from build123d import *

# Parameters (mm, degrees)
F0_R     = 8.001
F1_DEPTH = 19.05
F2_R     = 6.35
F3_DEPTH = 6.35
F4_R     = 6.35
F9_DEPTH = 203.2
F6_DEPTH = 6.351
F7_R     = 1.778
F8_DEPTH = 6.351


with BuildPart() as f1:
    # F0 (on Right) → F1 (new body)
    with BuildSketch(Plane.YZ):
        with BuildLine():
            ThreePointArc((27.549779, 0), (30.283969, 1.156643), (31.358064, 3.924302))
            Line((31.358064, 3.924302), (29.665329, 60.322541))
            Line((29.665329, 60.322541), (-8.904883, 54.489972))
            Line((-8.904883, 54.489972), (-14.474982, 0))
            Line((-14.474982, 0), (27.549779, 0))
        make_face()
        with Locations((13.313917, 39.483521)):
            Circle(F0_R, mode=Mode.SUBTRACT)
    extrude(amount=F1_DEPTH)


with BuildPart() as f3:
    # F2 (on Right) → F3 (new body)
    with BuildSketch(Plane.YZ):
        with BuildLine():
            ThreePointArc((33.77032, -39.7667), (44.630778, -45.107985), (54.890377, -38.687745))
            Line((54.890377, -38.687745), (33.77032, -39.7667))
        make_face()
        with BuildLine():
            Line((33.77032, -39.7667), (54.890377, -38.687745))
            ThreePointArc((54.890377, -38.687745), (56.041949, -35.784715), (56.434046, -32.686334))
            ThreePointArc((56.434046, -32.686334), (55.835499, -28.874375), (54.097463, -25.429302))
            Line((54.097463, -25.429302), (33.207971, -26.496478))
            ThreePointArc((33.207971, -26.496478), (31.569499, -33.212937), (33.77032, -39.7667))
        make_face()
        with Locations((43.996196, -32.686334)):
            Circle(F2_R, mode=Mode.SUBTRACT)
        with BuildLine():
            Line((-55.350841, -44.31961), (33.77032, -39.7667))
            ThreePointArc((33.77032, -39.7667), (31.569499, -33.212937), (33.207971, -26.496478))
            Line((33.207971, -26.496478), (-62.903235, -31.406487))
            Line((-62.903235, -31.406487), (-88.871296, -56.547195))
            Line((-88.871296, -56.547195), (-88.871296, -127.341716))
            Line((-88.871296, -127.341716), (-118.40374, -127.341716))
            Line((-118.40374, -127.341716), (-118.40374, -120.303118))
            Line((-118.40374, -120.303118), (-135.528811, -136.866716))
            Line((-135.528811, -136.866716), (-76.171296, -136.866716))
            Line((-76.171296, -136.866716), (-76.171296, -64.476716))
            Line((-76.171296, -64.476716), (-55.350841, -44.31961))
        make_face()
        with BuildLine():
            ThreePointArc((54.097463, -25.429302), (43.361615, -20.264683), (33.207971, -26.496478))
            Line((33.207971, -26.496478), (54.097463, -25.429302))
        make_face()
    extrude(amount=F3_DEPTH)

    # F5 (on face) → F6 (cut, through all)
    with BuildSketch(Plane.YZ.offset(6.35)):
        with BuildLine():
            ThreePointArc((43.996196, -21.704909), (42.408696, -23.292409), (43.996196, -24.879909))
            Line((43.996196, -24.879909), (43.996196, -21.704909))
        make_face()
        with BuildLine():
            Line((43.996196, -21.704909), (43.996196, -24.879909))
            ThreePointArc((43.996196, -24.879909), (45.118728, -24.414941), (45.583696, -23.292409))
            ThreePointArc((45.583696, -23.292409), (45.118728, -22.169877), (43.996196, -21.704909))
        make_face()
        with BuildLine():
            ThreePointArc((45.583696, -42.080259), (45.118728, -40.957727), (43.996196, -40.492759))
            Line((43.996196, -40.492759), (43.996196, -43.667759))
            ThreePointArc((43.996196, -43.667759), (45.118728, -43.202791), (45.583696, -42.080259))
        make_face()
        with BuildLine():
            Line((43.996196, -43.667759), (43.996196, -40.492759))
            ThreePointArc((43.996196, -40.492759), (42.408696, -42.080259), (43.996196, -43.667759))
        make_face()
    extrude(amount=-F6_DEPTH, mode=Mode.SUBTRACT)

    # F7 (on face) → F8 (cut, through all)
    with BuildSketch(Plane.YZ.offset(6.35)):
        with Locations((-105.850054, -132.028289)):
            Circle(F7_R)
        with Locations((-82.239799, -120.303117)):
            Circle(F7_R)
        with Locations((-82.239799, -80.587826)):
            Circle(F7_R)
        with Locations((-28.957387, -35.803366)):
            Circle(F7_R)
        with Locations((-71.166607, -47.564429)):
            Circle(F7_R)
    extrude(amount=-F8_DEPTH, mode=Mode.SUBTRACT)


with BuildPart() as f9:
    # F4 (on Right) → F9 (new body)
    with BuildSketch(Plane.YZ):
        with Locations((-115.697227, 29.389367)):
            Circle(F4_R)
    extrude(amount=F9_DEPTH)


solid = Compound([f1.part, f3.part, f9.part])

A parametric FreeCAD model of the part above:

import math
import FreeCAD as App
import Part
import Sketcher
from FreeCAD import Vector
Q = App.Units.Quantity

doc = App.newDocument("Part")
body = doc.addObject("PartDesign::Body", "Body")

sketch1 = body.newObject("Sketcher::SketchObject", "Sketch")
sketch1.AttachmentSupport = (doc.getObject("YZ_Plane"), [""])
sketch1.MapMode = "FlatFace"
sketch1.addGeometry(Part.ArcOfCircle(Part.Circle(Vector(27.549779, 3.81, 0), Vector(0, 0, 1), 3.81), math.radians(-89.999993), math.radians(1.719155)), False)
sketch1.addGeometry(Part.LineSegment(Vector(31.358064, 3.924302, 0), Vector(29.665329, 60.322541, 0)), False)
sketch1.addGeometry(Part.LineSegment(Vector(29.665329, 60.322541, 0), Vector(-8.904883, 54.489972, 0)), False)
sketch1.addGeometry(Part.LineSegment(Vector(-8.904883, 54.489972, 0), Vector(-14.474982, 0, 0)), False)
sketch1.addGeometry(Part.LineSegment(Vector(-14.474982, 0, 0), Vector(27.549779, 0, 0)), False)
sketch1.addGeometry(Part.Circle(Vector(13.313917, 39.483521, 0), Vector(0, 0, 1), 8.001), False)
sketch1.addConstraint(Sketcher.Constraint("Coincident", 0, 2, 1, 1))
sketch1.addConstraint(Sketcher.Constraint("Coincident", 1, 2, 2, 1))
sketch1.addConstraint(Sketcher.Constraint("Coincident", 2, 2, 3, 1))
sketch1.addConstraint(Sketcher.Constraint("Coincident", 3, 2, 4, 1))
sketch1.addConstraint(Sketcher.Constraint("Coincident", 4, 2, 0, 1))
sketch1.addConstraint(Sketcher.Constraint("Horizontal", 4))
sketch1.addConstraint(Sketcher.Constraint("PointOnObject", 3, 2, -1))
sketch1.addConstraint(Sketcher.Constraint("Diameter", 5, Q("0.63 in")))
sketch1.addConstraint(Sketcher.Constraint("Radius", 0, Q("0.15 in")))
sketch1.addConstraint(Sketcher.Constraint("DistanceY", -1, 1, 0, 2, Q("0.1545001 in")))
sketch1.addConstraint(Sketcher.Constraint("DistanceX", 4, 1, 4, 2, 42.024761))
sketch1.addConstraint(Sketcher.Constraint("DistanceX", 2, 2, 5, 3, 22.2188))
sketch1.addConstraint(Sketcher.Constraint("DistanceX", 3, 2, 5, 3, 27.788899))
sketch1.addConstraint(Sketcher.Constraint("Distance", 2, 39.008718))
sketch1.addConstraint(Sketcher.Constraint("DistanceX", -1, 1, 0, 3, 27.549779))
sketch1.addConstraint(Sketcher.Constraint("DistanceY", -1, 1, 5, 3, 39.483521))
sketch1.addConstraint(Sketcher.Constraint("DistanceX", -1, 1, 1, 2, 29.665329))
sketch1.addConstraint(Sketcher.Constraint("DistanceY", -1, 1, 1, 2, 60.322541))
sketch1.addConstraint(Sketcher.Constraint("DistanceX", -1, 1, 4, 2, 27.549779))
pad1 = body.newObject("PartDesign::Pad", "Pad")
pad1.Profile = sketch1
pad1.Length = Q("0.75 in")
body2 = doc.addObject("PartDesign::Body", "Body001")

sketch2 = body2.newObject("Sketcher::SketchObject", "Sketch001")
sketch2.AttachmentSupport = (doc.getObject("YZ_Plane001"), [""])
sketch2.MapMode = "FlatFace"
sketch2.addGeometry(Part.ArcOfCircle(Part.Circle(Vector(43.996196, -32.686333, 0), Vector(0, 0, 1), 12.437851), math.radians(-145.301383), math.radians(-28.849592)), False)
sketch2.addGeometry(Part.ArcOfCircle(Part.Circle(Vector(43.996217, -32.686339, 0), Vector(0, 0, 1), 12.437829), math.radians(-28.849613), math.radians(0.000025)), False)
sketch2.addGeometry(Part.ArcOfCircle(Part.Circle(Vector(43.996209, -32.68633, 0), Vector(0, 0, 1), 12.437837), math.radians(-0.000018), math.radians(35.694541)), False)
sketch2.addGeometry(Part.ArcOfCircle(Part.Circle(Vector(43.996196, -32.686334, 0), Vector(0, 0, 1), 12.43785), math.radians(35.694522), math.radians(150.154502)), False)
sketch2.addGeometry(Part.LineSegment(Vector(33.207971, -26.496478, 0), Vector(-62.903235, -31.406487, 0)), False)
sketch2.addGeometry(Part.LineSegment(Vector(-62.903235, -31.406487, 0), Vector(-88.871296, -56.547195, 0)), False)
sketch2.addGeometry(Part.LineSegment(Vector(-88.871296, -56.547195, 0), Vector(-88.871296, -127.341716, 0)), False)
sketch2.addGeometry(Part.LineSegment(Vector(-88.871296, -127.341716, 0), Vector(-118.40374, -127.341716, 0)), False)
sketch2.addGeometry(Part.LineSegment(Vector(-118.40374, -127.341716, 0), Vector(-118.40374, -120.303118, 0)), False)
sketch2.addGeometry(Part.LineSegment(Vector(-118.40374, -120.303118, 0), Vector(-135.528811, -136.866716, 0)), False)
sketch2.addGeometry(Part.LineSegment(Vector(-135.528811, -136.866716, 0), Vector(-76.171296, -136.866716, 0)), False)
sketch2.addGeometry(Part.LineSegment(Vector(-76.171296, -136.866716, 0), Vector(-76.171296, -64.476716, 0)), False)
sketch2.addGeometry(Part.LineSegment(Vector(-76.171296, -64.476716, 0), Vector(-55.350841, -44.31961, 0)), False)
sketch2.addGeometry(Part.LineSegment(Vector(-55.350841, -44.31961, 0), Vector(33.77032, -39.7667, 0)), False)
sketch2.addGeometry(Part.Circle(Vector(43.996196, -32.686334, 0), Vector(0, 0, 1), 6.35), False)
sketch2.addConstraint(Sketcher.Constraint("Coincident", 0, 2, 1, 1))
sketch2.addConstraint(Sketcher.Constraint("Coincident", 1, 2, 2, 1))
sketch2.addConstraint(Sketcher.Constraint("Coincident", 2, 2, 3, 1))
sketch2.addConstraint(Sketcher.Constraint("Coincident", 3, 2, 4, 1))
sketch2.addConstraint(Sketcher.Constraint("Coincident", 4, 2, 5, 1))
sketch2.addConstraint(Sketcher.Constraint("Coincident", 5, 2, 6, 1))
sketch2.addConstraint(Sketcher.Constraint("Coincident", 6, 2, 7, 1))
sketch2.addConstraint(Sketcher.Constraint("Coincident", 7, 2, 8, 1))
sketch2.addConstraint(Sketcher.Constraint("Coincident", 8, 2, 9, 1))
sketch2.addConstraint(Sketcher.Constraint("Coincident", 9, 2, 10, 1))
sketch2.addConstraint(Sketcher.Constraint("Coincident", 10, 2, 11, 1))
sketch2.addConstraint(Sketcher.Constraint("Coincident", 11, 2, 12, 1))
sketch2.addConstraint(Sketcher.Constraint("Coincident", 12, 2, 13, 1))
sketch2.addConstraint(Sketcher.Constraint("Coincident", 13, 2, 0, 1))
sketch2.addConstraint(Sketcher.Constraint("Vertical", 6))
sketch2.addConstraint(Sketcher.Constraint("Horizontal", 7))
sketch2.addConstraint(Sketcher.Constraint("Vertical", 8))
sketch2.addConstraint(Sketcher.Constraint("Horizontal", 10))
sketch2.addConstraint(Sketcher.Constraint("Vertical", 11))
sketch2.addConstraint(Sketcher.Constraint("Coincident", 3, 3, 0, 3))
sketch2.addConstraint(Sketcher.Constraint("Coincident", 14, 3, 0, 3))
sketch2.addConstraint(Sketcher.Constraint("Diameter", 14, Q("0.5 in")))
sketch2.addConstraint(Sketcher.Constraint("DistanceY", 11, 1, 11, 2, Q("2.85 in")))
sketch2.addConstraint(Sketcher.Constraint("DistanceX", 6, 2, 10, 2, Q("0.5 in")))
sketch2.addConstraint(Sketcher.Constraint("Radius", 0, 12.437851))
sketch2.addConstraint(Sketcher.Constraint("Radius", 1, 12.437829))
sketch2.addConstraint(Sketcher.Constraint("Radius", 3, 12.43785))
sketch2.addConstraint(Sketcher.Constraint("DistanceY", 9, 2, 7, 2, Q("0.375 in")))
sketch2.addConstraint(Sketcher.Constraint("DistanceY", 8, 1, 8, 2, 7.038598))
sketch2.addConstraint(Sketcher.Constraint("Radius", 2, 12.437837))
sketch2.addConstraint(Sketcher.Constraint("DistanceY", 6, 2, 6, 1, 70.794521))
sketch2.addConstraint(Sketcher.Constraint("DistanceY", 2, 2, -1, 1, 25.429302))
sketch2.addConstraint(Sketcher.Constraint("DistanceY", 13, 2, -1, 1, 39.7667))
sketch2.addConstraint(Sketcher.Constraint("Distance", 13, 89.237382))
sketch2.addConstraint(Sketcher.Constraint("DistanceX", 7, 2, 7, 1, 29.532444))
sketch2.addConstraint(Sketcher.Constraint("DistanceX", 10, 1, 10, 2, 59.357515))
sketch2.addConstraint(Sketcher.Constraint("DistanceY", 1, 3, -1, 1, 32.686339))
sketch2.addConstraint(Sketcher.Constraint("DistanceX", -1, 1, 2, 3, 43.996209))
sketch2.addConstraint(Sketcher.Constraint("DistanceY", 2, 3, -1, 1, 32.68633))
sketch2.addConstraint(Sketcher.Constraint("DistanceX", -1, 1, 3, 2, 33.207971))
sketch2.addConstraint(Sketcher.Constraint("DistanceX", 7, 2, -1, 1, 118.40374))
sketch2.addConstraint(Sketcher.Constraint("DistanceX", 12, 2, -1, 1, 55.350841))
sketch2.addConstraint(Sketcher.Constraint("DistanceX", 1, 3, 0, 2, 10.89416))
sketch2.addConstraint(Sketcher.Constraint("DistanceY", 0, 2, 1, 2, 6.001411))
sketch2.addConstraint(Sketcher.Constraint("DistanceY", 4, 2, 3, 2, 4.910009))
sketch2.addConstraint(Sketcher.Constraint("DistanceX", 4, 2, 0, 3, 106.899431))
sketch2.addConstraint(Sketcher.Constraint("DistanceY", 5, 2, 4, 2, 25.140708))
pad2 = body2.newObject("PartDesign::Pad", "Pad001")
pad2.Profile = sketch2
pad2.Length = Q("0.25 in")

sketch3 = body2.newObject("Sketcher::SketchObject", "Sketch002")
sketch3.AttachmentSupport = (doc.getObject("YZ_Plane001"), [""])
sketch3.MapMode = "FlatFace"
sketch3.AttachmentOffset = App.Placement(Vector(0, 0, 0.25 * 25.4), App.Rotation())
sketch3.addGeometry(Part.ArcOfCircle(Part.Circle(Vector(44, -23.3, 0), Vector(0, 0, 1), 1.6), math.radians(90), math.radians(270)), False)
sketch3.addGeometry(Part.ArcOfCircle(Part.Circle(Vector(44, -23.3, 0), Vector(0, 0, 1), 1.6), math.radians(-90), math.radians(0)), False)
sketch3.addGeometry(Part.ArcOfCircle(Part.Circle(Vector(44, -23.3, 0), Vector(0, 0, 1), 1.6), math.radians(0), math.radians(90)), False)
sketch3.addGeometry(Part.ArcOfCircle(Part.Circle(Vector(44, -42.1, 0), Vector(0, 0, 1), 1.6), math.radians(0), math.radians(90)), False)
sketch3.addGeometry(Part.ArcOfCircle(Part.Circle(Vector(44, -42.1, 0), Vector(0, 0, 1), 1.6), math.radians(90), math.radians(270)), False)
sketch3.addGeometry(Part.ArcOfCircle(Part.Circle(Vector(44, -42.1, 0), Vector(0, 0, 1), 1.6), math.radians(-90), math.radians(0)), False)
sketch3.addConstraint(Sketcher.Constraint("Tangent", 0, 2, 1, 1))
sketch3.addConstraint(Sketcher.Constraint("Tangent", 1, 2, 2, 1))
sketch3.addConstraint(Sketcher.Constraint("Tangent", 2, 2, 0, 1))
sketch3.addConstraint(Sketcher.Constraint("Tangent", 3, 2, 4, 1))
sketch3.addConstraint(Sketcher.Constraint("Tangent", 4, 2, 5, 1))
sketch3.addConstraint(Sketcher.Constraint("Tangent", 5, 2, 3, 1))
sketch3.addConstraint(Sketcher.Constraint("Equal", 2, 3))
sketch3.addConstraint(Sketcher.Constraint("Horizontal", 2, 3, 1, 2))
sketch3.addConstraint(Sketcher.Constraint("Horizontal", 4, 3, 5, 2))
sketch3.addConstraint(Sketcher.Constraint("Vertical", 2, 3, 3, 3))
sketch3.addConstraint(Sketcher.Constraint("Vertical", 5, 3, 0, 2))
sketch3.addConstraint(Sketcher.Constraint("Vertical", 0, 2, 2, 2))
sketch3.addConstraint(Sketcher.Constraint("Vertical", 2, 2, 3, 2))
sketch3.addConstraint(Sketcher.Constraint("Vertical", 3, 2, 4, 2))
sketch3.addConstraint(Sketcher.Constraint("Radius", 0, Q("0.0625 in")))
sketch3.addConstraint(Sketcher.Constraint("DistanceY", 0, 3, -1, 1, 23.292409))
sketch3.addConstraint(Sketcher.Constraint("DistanceY", 3, 3, -1, 1, 42.080259))
sketch3.addConstraint(Sketcher.Constraint("DistanceX", -1, 1, 0, 3, 43.996196))
pocket1 = body2.newObject("PartDesign::Pocket", "Pocket")
pocket1.Profile = sketch3
pocket1.Type = "ThroughAll"

sketch4 = body2.newObject("Sketcher::SketchObject", "Sketch003")
sketch4.AttachmentSupport = (doc.getObject("YZ_Plane001"), [""])
sketch4.MapMode = "FlatFace"
sketch4.AttachmentOffset = App.Placement(Vector(0, 0, 0.25 * 25.4), App.Rotation())
sketch4.addGeometry(Part.Circle(Vector(-105.9, -132, 0), Vector(0, 0, 1), 1.8), False)
sketch4.addGeometry(Part.Circle(Vector(-82.2, -120.3, 0), Vector(0, 0, 1), 1.8), False)
sketch4.addGeometry(Part.Circle(Vector(-82.2, -80.6, 0), Vector(0, 0, 1), 1.8), False)
sketch4.addGeometry(Part.Circle(Vector(-29, -35.8, 0), Vector(0, 0, 1), 1.8), False)
sketch4.addGeometry(Part.Circle(Vector(-71.2, -47.6, 0), Vector(0, 0, 1), 1.8), False)
sketch4.addConstraint(Sketcher.Constraint("Equal", 0, 1))
sketch4.addConstraint(Sketcher.Constraint("Equal", 1, 2))
sketch4.addConstraint(Sketcher.Constraint("Equal", 2, 3))
sketch4.addConstraint(Sketcher.Constraint("Equal", 3, 4))
sketch4.addConstraint(Sketcher.Constraint("Vertical", 1, 3, 2, 3))
sketch4.addConstraint(Sketcher.Constraint("Diameter", 0, Q("0.14 in")))
sketch4.addConstraint(Sketcher.Constraint("DistanceX", 1, 3, -1, 1, 82.239799))
sketch4.addConstraint(Sketcher.Constraint("DistanceY", 0, 3, -1, 1, 132.028289))
sketch4.addConstraint(Sketcher.Constraint("DistanceY", 4, 3, -1, 1, 47.564429))
sketch4.addConstraint(Sketcher.Constraint("DistanceY", 1, 3, 2, 3, 39.715291))
sketch4.addConstraint(Sketcher.Constraint("DistanceY", 2, 3, 3, 3, 44.78446))
sketch4.addConstraint(Sketcher.Constraint("DistanceX", 4, 3, 3, 3, 42.20922))
sketch4.addConstraint(Sketcher.Constraint("DistanceX", 0, 3, -1, 1, 105.850054))
sketch4.addConstraint(Sketcher.Constraint("DistanceY", 1, 3, -1, 1, 120.303117))
sketch4.addConstraint(Sketcher.Constraint("DistanceX", 3, 3, -1, 1, 28.957387))
pocket2 = body2.newObject("PartDesign::Pocket", "Pocket001")
pocket2.Profile = sketch4
pocket2.Type = "ThroughAll"
body3 = doc.addObject("PartDesign::Body", "Body002")

sketch5 = body3.newObject("Sketcher::SketchObject", "Sketch004")
sketch5.AttachmentSupport = (doc.getObject("YZ_Plane002"), [""])
sketch5.MapMode = "FlatFace"
sketch5.addGeometry(Part.Circle(Vector(-116, 29, 0), Vector(0, 0, 1), 6), False)
sketch5.addConstraint(Sketcher.Constraint("Diameter", 0, Q("0.5 in")))
sketch5.addConstraint(Sketcher.Constraint("DistanceX", 0, 3, -1, 1, 115.697227))
sketch5.addConstraint(Sketcher.Constraint("DistanceY", -1, 1, 0, 3, 29.389367))
pad3 = body3.newObject("PartDesign::Pad", "Pad002")
pad3.Profile = sketch5
pad3.Length = Q("8 in")

doc.recompute()
